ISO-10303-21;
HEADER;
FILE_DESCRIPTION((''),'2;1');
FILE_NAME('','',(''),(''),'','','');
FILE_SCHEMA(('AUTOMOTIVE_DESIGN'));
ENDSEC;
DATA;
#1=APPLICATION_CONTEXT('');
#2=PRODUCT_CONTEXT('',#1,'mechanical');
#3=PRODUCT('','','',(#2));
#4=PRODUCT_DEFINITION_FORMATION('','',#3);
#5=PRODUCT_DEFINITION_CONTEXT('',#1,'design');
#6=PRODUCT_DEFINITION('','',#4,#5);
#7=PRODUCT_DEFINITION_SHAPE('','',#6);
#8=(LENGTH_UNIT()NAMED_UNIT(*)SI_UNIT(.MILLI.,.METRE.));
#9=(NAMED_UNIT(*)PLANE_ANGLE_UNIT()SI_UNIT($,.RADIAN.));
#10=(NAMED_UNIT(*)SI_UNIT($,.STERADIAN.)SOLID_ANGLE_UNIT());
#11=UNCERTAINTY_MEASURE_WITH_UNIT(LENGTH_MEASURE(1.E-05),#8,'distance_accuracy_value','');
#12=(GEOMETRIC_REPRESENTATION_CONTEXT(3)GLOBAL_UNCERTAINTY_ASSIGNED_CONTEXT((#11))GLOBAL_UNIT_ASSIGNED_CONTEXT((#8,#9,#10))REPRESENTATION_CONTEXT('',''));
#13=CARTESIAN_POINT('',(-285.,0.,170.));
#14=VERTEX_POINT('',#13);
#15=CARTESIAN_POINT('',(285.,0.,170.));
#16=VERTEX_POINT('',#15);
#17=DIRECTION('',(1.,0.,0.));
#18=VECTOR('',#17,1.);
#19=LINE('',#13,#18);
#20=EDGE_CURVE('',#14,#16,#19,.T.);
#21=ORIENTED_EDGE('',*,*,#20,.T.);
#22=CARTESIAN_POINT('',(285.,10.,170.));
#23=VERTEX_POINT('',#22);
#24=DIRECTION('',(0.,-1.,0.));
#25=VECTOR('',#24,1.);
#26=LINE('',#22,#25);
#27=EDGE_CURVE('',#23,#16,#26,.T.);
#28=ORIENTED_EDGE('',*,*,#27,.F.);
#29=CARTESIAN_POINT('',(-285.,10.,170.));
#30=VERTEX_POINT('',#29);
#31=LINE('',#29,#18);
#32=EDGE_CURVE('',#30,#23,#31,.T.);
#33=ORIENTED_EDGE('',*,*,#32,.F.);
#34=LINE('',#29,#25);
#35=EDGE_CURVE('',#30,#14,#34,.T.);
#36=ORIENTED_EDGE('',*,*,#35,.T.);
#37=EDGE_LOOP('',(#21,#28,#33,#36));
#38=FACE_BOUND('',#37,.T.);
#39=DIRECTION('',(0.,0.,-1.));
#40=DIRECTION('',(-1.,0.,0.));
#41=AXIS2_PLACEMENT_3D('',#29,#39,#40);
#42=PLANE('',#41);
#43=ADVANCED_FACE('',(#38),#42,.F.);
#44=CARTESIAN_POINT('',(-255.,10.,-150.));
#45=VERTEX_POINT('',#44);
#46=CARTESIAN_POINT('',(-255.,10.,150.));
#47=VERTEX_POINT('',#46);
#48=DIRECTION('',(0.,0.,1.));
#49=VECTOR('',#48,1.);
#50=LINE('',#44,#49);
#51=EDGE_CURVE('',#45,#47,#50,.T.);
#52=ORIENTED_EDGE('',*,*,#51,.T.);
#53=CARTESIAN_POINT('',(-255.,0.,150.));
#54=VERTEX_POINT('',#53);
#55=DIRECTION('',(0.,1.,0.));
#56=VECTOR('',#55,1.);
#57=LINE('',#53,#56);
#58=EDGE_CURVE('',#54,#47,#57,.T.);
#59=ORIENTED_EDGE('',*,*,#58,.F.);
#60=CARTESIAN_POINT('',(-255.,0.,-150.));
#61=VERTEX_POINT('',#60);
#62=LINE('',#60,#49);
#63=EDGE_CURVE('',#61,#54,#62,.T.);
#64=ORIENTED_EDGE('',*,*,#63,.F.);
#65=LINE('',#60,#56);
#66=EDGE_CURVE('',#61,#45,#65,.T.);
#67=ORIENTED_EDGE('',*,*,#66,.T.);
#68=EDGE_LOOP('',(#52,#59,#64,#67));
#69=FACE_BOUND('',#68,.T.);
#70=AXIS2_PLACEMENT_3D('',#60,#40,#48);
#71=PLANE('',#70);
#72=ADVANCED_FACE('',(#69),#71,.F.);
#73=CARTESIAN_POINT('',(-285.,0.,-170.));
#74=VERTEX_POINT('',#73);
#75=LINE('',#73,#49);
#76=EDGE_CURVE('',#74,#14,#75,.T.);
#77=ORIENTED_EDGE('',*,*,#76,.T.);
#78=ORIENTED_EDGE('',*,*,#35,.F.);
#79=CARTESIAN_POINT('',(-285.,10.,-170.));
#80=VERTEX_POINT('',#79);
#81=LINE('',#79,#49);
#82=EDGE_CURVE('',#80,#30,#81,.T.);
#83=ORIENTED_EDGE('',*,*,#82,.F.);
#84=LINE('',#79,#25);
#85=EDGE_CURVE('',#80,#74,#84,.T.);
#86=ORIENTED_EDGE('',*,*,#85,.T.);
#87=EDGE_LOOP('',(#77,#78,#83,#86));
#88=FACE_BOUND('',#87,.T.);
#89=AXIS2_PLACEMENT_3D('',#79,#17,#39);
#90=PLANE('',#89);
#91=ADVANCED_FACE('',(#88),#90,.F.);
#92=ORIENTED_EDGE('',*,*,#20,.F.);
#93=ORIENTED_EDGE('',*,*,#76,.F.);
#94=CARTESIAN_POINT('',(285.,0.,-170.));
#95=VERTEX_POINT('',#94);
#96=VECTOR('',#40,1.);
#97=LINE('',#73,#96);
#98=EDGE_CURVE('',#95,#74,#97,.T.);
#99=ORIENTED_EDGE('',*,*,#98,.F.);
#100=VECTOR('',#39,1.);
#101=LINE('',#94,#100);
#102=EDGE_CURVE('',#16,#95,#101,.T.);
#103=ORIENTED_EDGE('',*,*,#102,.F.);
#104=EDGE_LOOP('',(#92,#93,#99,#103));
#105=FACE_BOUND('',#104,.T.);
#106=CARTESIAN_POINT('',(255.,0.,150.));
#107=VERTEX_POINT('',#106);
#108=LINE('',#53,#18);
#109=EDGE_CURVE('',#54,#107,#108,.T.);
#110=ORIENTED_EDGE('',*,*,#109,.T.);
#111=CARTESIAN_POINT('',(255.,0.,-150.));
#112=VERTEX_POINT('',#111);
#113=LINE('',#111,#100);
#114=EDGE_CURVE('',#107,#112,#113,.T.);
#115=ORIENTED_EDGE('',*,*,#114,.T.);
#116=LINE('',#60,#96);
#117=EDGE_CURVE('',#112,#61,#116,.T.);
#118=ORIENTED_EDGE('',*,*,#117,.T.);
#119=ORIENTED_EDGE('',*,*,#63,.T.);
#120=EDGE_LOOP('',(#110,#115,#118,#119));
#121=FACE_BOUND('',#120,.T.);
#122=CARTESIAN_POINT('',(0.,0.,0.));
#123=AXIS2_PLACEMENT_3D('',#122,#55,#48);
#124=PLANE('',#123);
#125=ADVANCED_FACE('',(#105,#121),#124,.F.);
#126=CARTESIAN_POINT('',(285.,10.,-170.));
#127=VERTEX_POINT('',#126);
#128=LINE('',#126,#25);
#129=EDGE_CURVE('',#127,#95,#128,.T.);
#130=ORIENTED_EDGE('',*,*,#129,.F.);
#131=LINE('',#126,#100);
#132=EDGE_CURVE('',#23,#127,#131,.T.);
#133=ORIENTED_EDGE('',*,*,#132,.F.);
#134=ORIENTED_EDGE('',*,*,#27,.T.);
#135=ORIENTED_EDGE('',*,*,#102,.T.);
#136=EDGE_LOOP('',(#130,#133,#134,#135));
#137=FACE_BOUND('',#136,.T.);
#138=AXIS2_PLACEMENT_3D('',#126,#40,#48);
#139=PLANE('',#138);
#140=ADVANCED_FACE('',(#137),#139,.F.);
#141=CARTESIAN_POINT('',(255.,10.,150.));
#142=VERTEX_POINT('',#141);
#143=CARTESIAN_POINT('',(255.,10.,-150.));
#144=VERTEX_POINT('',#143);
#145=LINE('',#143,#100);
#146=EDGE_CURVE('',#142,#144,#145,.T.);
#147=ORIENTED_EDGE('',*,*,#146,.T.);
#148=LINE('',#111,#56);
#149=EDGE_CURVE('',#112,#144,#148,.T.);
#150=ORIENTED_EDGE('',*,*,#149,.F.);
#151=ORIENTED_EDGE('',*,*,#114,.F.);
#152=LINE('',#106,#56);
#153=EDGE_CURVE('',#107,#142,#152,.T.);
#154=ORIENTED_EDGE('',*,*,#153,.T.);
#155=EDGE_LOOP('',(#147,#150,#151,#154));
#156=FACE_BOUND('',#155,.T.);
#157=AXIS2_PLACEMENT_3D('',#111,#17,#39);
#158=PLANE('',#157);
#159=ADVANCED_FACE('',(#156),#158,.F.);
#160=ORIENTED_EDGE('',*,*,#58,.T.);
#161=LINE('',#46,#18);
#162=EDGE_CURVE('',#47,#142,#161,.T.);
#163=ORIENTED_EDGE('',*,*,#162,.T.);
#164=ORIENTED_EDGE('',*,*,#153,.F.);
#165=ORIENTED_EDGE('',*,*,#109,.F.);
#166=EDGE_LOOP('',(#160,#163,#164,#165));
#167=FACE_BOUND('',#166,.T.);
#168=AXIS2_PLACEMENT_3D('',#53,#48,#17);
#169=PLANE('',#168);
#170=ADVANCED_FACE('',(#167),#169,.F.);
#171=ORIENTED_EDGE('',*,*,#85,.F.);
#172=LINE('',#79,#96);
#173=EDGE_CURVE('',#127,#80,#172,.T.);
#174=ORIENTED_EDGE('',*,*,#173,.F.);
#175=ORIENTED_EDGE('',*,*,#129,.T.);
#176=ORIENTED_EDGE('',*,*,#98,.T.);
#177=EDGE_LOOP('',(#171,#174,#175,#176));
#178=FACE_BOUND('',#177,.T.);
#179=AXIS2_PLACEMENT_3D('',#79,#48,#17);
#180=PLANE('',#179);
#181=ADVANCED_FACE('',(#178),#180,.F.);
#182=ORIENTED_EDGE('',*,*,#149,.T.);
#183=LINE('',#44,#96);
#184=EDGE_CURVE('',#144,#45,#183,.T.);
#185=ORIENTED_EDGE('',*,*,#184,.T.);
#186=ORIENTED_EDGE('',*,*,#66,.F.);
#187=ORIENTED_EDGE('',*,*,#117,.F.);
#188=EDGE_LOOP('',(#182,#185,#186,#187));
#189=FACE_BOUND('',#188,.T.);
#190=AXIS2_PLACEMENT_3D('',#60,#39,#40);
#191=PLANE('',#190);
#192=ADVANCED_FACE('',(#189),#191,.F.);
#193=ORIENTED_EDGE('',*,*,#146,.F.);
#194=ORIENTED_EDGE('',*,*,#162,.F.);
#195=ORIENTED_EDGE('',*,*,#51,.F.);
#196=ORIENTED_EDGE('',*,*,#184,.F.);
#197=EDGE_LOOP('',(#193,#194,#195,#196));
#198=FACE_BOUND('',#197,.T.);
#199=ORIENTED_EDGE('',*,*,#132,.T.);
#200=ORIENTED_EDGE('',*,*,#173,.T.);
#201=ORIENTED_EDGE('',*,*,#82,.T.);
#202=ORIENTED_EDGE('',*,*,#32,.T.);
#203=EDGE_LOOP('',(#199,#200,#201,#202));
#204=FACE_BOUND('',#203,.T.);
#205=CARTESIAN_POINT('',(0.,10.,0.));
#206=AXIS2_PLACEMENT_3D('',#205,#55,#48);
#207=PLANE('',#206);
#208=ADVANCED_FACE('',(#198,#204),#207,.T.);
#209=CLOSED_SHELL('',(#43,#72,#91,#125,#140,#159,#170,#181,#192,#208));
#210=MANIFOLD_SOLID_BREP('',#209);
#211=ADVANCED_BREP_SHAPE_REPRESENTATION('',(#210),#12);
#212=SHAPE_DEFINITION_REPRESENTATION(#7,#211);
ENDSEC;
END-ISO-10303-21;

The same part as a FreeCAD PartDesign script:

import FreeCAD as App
import Part
import Sketcher

V = App.Vector

doc = App.newDocument("Part")
params = doc.addObject("Spreadsheet::Sheet", "Params")
for row, (alias, value) in enumerate([
    ("sketch1_width", "570 mm"),
    ("sketch1_height", "340 mm"),
    ("pad1_length", "10 mm"),
    ("sketch2_width", "510 mm"),
    ("sketch2_height", "300 mm"),
    ("pocket1_length", "10 mm"),
], start=1):
    params.set(f"A{row}", alias)
    params.set(f"B{row}", "=" + value)
    params.setAlias(f"B{row}", alias)

body = doc.addObject("PartDesign::Body", "Body")

# Sketch on XZ plane
sketch1 = body.newObject("Sketcher::SketchObject", "Sketch")
sketch1.AttachmentSupport = (doc.getObject("XZ_Plane"), [""])
sketch1.MapMode = "FlatFace"
sketch1.addGeometry([
    Part.LineSegment(V(-285, -170, 0), V(-285, 170, 0)),
    Part.LineSegment(V(-285, 170, 0), V(285, 170, 0)),
    Part.LineSegment(V(285, 170, 0), V(285, -170, 0)),
    Part.LineSegment(V(285, -170, 0), V(-285, -170, 0)),
], False)
sketch1.addConstraint([
    Sketcher.Constraint("Coincident", 0, 2, 1, 1),
    Sketcher.Constraint("Coincident", 1, 2, 2, 1),
    Sketcher.Constraint("Coincident", 2, 2, 3, 1),
    Sketcher.Constraint("Coincident", 3, 2, 0, 1),
    Sketcher.Constraint("Vertical", 0),
    Sketcher.Constraint("Horizontal", 1),
    Sketcher.Constraint("Vertical", 2),
    Sketcher.Constraint("Horizontal", 3),
    Sketcher.Constraint("Symmetric", 0, 2, 2, 2, -1, 1),
    Sketcher.Constraint("DistanceX", 1, 1, 1, 2, 570.0),
    Sketcher.Constraint("DistanceY", 0, 1, 0, 2, 340.0),
])
sketch1.setExpression("Constraints[9]", "Params.sketch1_width")
sketch1.setExpression("Constraints[10]", "Params.sketch1_height")
pad1 = body.newObject("PartDesign::Pad", "Pad")
pad1.Profile = sketch1
pad1.setExpression("Length", "Params.pad1_length")
pad1.Reversed = True

# Sketch on XZ plane
sketch2 = body.newObject("Sketcher::SketchObject", "Sketch001")
sketch2.AttachmentSupport = (doc.getObject("XZ_Plane"), [""])
sketch2.MapMode = "FlatFace"
sketch2.AttachmentOffset = App.Placement(V(0, 0, -10), App.Rotation())
sketch2.addGeometry([
    Part.LineSegment(V(-255, -150, 0), V(-255, 150, 0)),
    Part.LineSegment(V(-255, 150, 0), V(255, 150, 0)),
    Part.LineSegment(V(255, 150, 0), V(255, -150, 0)),
    Part.LineSegment(V(255, -150, 0), V(-255, -150, 0)),
], False)
sketch2.addConstraint([
    Sketcher.Constraint("Coincident", 0, 2, 1, 1),
    Sketcher.Constraint("Coincident", 1, 2, 2, 1),
    Sketcher.Constraint("Coincident", 2, 2, 3, 1),
    Sketcher.Constraint("Coincident", 3, 2, 0, 1),
    Sketcher.Constraint("Vertical", 0),
    Sketcher.Constraint("Horizontal", 1),
    Sketcher.Constraint("Vertical", 2),
    Sketcher.Constraint("Horizontal", 3),
    Sketcher.Constraint("Symmetric", 0, 2, 2, 2, -1, 1),
    Sketcher.Constraint("DistanceX", 1, 1, 1, 2, 510.0),
    Sketcher.Constraint("DistanceY", 0, 1, 0, 2, 300.0),
])
sketch2.setExpression("Constraints[9]", "Params.sketch2_width")
sketch2.setExpression("Constraints[10]", "Params.sketch2_height")
pocket1 = body.newObject("PartDesign::Pocket", "Pocket")
pocket1.Profile = sketch2
pocket1.setExpression("Length", "Params.pocket1_length")
pocket1.Reversed = True

doc.recompute()
